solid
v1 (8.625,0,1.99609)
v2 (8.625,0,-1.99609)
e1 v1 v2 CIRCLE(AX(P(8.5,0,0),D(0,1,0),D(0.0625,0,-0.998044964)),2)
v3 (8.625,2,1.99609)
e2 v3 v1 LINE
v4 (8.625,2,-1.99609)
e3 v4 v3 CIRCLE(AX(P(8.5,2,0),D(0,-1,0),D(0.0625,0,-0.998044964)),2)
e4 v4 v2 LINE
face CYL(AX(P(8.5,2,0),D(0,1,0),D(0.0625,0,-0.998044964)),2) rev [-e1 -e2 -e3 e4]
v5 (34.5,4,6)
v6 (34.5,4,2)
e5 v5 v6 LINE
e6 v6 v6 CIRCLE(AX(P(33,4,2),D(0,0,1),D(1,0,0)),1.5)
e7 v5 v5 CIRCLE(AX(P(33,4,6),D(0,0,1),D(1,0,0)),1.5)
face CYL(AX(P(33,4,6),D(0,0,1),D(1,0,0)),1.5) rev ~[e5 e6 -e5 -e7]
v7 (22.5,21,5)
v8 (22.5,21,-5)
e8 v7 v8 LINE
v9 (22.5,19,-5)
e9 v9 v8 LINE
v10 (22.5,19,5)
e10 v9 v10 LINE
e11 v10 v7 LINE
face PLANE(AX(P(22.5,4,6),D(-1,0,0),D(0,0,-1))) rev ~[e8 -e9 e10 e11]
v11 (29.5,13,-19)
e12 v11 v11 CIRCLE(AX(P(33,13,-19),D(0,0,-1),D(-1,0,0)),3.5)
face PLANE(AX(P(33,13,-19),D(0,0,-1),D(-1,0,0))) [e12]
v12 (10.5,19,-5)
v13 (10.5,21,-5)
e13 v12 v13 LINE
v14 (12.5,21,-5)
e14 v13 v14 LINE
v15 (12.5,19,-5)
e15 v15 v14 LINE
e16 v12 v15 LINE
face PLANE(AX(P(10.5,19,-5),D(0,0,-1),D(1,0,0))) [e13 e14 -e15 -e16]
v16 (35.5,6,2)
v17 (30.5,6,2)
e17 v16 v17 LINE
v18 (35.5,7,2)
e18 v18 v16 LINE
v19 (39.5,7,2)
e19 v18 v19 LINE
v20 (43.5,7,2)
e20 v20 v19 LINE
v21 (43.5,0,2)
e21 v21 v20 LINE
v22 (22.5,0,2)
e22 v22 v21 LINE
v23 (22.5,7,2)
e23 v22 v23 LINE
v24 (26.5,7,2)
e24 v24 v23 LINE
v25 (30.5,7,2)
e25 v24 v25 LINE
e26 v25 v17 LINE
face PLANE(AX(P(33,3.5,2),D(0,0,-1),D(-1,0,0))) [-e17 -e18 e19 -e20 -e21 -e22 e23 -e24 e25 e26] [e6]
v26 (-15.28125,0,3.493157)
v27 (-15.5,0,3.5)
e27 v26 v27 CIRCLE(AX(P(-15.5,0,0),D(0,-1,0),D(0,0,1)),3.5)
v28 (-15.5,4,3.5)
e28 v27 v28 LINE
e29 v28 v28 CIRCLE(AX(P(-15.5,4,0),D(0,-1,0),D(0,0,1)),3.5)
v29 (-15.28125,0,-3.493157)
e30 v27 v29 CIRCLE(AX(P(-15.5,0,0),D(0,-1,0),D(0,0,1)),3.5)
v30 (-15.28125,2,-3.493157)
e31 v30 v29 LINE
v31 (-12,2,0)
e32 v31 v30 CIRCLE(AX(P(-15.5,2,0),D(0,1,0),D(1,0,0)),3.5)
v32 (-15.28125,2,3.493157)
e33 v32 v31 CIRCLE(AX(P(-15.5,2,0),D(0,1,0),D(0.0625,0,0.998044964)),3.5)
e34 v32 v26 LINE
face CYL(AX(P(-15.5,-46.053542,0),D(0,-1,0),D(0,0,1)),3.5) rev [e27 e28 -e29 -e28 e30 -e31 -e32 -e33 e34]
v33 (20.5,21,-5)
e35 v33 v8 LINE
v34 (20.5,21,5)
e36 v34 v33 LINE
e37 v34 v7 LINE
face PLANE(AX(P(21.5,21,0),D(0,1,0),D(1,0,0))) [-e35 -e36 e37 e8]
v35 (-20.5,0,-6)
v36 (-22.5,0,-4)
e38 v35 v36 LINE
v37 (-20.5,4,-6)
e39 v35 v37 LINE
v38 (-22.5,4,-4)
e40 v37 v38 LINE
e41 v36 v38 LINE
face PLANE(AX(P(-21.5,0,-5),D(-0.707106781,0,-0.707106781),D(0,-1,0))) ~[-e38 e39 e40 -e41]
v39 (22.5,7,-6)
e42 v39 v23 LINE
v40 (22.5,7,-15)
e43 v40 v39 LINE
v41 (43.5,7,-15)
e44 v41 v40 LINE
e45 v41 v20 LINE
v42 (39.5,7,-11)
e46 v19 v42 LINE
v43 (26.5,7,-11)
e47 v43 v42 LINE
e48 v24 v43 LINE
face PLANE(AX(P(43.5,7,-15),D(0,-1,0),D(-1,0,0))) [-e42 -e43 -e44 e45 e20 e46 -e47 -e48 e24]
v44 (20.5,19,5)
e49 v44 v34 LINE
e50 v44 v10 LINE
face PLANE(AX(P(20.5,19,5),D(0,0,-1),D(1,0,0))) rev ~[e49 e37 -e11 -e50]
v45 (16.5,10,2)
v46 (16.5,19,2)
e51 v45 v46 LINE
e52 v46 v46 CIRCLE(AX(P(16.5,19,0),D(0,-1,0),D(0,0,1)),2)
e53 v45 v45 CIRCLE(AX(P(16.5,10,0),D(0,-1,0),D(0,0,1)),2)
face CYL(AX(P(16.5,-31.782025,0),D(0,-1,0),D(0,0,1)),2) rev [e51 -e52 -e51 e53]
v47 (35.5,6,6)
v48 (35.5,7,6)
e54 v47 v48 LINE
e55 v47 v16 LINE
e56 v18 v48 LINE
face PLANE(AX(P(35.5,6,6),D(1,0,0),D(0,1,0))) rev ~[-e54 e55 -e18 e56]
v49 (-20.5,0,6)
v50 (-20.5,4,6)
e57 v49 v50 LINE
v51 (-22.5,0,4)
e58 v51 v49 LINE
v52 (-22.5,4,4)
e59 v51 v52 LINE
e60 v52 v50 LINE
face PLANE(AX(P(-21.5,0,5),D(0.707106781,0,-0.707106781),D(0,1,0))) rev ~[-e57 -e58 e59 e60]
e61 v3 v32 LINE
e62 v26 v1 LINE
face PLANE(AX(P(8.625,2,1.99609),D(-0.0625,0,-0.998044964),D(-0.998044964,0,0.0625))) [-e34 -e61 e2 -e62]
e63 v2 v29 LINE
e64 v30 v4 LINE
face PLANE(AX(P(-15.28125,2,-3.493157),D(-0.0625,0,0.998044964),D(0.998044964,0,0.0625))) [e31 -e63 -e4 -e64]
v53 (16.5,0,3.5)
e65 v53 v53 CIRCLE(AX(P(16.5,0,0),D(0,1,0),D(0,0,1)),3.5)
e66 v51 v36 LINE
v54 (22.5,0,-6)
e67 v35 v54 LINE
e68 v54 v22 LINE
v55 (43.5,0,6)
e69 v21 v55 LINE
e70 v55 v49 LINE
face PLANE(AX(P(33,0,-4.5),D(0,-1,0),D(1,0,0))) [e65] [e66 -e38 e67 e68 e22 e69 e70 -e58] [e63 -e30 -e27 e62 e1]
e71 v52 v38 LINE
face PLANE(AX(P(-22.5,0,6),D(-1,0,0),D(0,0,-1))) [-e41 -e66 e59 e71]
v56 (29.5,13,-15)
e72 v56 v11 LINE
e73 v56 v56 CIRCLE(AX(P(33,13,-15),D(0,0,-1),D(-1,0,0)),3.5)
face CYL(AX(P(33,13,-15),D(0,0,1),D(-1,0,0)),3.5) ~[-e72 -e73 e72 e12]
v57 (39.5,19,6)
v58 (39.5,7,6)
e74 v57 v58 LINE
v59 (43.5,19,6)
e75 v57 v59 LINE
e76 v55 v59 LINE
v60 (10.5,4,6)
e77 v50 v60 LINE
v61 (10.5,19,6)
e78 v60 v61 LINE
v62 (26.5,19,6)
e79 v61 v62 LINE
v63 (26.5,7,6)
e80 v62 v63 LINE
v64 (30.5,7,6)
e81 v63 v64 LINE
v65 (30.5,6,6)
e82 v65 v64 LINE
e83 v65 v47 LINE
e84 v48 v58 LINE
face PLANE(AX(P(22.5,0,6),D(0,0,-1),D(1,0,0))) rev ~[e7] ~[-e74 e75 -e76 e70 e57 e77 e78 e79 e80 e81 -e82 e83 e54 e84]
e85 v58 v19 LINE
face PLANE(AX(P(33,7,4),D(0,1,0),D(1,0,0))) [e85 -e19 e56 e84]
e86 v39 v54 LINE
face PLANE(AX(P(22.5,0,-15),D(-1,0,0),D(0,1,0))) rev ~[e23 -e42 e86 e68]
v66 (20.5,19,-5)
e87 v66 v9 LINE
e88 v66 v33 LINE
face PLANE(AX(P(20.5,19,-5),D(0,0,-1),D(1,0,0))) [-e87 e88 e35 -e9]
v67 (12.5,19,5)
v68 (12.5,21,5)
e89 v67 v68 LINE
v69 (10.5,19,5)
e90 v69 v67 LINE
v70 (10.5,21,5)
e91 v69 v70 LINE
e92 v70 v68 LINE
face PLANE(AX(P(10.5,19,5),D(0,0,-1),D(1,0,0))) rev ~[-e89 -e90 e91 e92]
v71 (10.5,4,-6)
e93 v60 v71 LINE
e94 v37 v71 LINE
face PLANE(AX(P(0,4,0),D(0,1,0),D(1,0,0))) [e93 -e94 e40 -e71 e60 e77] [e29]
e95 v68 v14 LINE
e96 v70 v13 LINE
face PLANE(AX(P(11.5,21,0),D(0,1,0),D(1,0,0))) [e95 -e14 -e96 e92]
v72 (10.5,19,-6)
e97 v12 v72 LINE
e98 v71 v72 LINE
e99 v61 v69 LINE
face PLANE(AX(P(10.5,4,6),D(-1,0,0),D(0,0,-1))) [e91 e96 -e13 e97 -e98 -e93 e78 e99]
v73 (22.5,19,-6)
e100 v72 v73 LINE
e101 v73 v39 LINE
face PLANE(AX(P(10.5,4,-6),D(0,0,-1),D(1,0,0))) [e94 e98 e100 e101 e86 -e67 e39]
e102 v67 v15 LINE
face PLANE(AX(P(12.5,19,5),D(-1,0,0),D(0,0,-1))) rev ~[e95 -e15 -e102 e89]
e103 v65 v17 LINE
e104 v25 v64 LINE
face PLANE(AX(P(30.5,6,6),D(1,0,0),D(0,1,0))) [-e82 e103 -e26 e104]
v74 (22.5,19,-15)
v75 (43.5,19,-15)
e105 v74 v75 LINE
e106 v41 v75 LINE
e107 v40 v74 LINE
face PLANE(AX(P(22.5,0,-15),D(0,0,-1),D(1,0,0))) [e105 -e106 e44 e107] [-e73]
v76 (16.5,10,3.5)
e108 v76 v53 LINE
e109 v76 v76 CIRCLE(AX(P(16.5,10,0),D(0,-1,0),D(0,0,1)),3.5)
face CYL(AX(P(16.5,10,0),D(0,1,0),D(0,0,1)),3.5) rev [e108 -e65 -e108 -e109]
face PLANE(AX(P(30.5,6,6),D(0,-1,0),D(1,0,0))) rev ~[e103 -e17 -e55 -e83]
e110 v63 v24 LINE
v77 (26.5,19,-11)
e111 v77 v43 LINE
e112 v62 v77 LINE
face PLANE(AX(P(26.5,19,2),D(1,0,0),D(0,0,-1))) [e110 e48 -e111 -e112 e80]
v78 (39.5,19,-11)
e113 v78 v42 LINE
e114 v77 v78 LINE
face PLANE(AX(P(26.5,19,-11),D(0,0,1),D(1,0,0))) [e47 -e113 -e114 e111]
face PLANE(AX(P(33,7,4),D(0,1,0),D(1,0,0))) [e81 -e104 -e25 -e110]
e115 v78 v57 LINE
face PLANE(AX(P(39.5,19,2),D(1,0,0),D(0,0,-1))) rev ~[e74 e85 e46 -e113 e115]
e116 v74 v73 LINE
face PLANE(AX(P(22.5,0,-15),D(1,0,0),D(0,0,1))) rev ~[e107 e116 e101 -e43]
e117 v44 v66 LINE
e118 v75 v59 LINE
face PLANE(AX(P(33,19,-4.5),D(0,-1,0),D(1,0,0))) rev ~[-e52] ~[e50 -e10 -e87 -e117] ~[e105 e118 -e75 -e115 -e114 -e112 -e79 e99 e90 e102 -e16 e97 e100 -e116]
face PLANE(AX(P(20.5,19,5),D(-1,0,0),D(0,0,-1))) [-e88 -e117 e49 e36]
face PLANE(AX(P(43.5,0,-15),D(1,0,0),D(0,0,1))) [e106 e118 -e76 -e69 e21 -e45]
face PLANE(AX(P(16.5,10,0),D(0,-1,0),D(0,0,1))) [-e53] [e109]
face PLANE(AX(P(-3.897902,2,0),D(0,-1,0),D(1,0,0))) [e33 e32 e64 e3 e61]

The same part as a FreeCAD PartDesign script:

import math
import FreeCAD as App
import Part
import Sketcher

V = App.Vector
Q = App.Units.Quantity


def edges_at(feature, points):
    """Names of the edges that pass closest to the given points."""
    edges = feature.Shape.Edges
    near = lambda p: min(range(len(edges)), key=lambda i: edges[i].distToShape(Part.Vertex(*p))[0])
    return sorted({f"Edge{near(p) + 1}" for p in points})


def add_polygon(sketch, points):
    """Adds a closed chain of lines whose ends are joined by coincident constraints."""
    first, n = sketch.GeometryCount, len(points)
    for a, b in zip(points, points[1:] + points[:1]):
        sketch.addGeometry(Part.LineSegment(App.Vector(*a, 0), App.Vector(*b, 0)), False)
    for i in range(n):
        sketch.addConstraint(Sketcher.Constraint("Coincident", first + i, 2, first + (i + 1) % n, 1))

doc = App.newDocument("Part")
body = doc.addObject("PartDesign::Body", "Body")

# Sketch on XZ plane
sketch1 = doc.addObject("Sketcher::SketchObject", "Sketch")
body.addObject(sketch1)
sketch1.AttachmentSupport = (doc.XZ_Plane, [""])
sketch1.MapMode = "FlatFace"
add_polygon(sketch1, [(-22, -6), (-22, 6), (22, 6), (22, -6)])  # lines 0-3
sketch1.addConstraint(Sketcher.Constraint("Vertical", 0))
sketch1.addConstraint(Sketcher.Constraint("Horizontal", 1))
sketch1.addConstraint(Sketcher.Constraint("Vertical", 2))
sketch1.addConstraint(Sketcher.Constraint("Horizontal", 3))
sketch1.addConstraint(Sketcher.Constraint("Symmetric", 0, 2, 2, 2, -1, 1))
sketch1.addConstraint(Sketcher.Constraint("DistanceX", 1, 1, 1, 2, Q("45 mm")))
sketch1.addConstraint(Sketcher.Constraint("DistanceY", 0, 1, 0, 2, Q("12 mm")))
pad1 = doc.addObject("PartDesign::Pad", "Pad")
body.addObject(pad1)
pad1.Profile = sketch1
pad1.Length = 4
pad1.Reversed = True

# Sketch on XZ plane
sketch2 = doc.addObject("Sketcher::SketchObject", "Sketch001")
body.addObject(sketch2)
sketch2.AttachmentSupport = (doc.XZ_Plane, [""])
sketch2.MapMode = "FlatFace"
sketch2.AttachmentOffset = App.Placement(V(0, 0, -4), App.Rotation())
add_polygon(sketch2, [(10, -6), (10, 6), (22, 6), (22, -6)])  # lines 0-3
sketch2.addConstraint(Sketcher.Constraint("Vertical", 0))
sketch2.addConstraint(Sketcher.Constraint("Horizontal", 1))
sketch2.addConstraint(Sketcher.Constraint("Vertical", 2))
sketch2.addConstraint(Sketcher.Constraint("Horizontal", 3))
sketch2.addConstraint(Sketcher.Constraint("Equal", 3, 0))
sketch2.addConstraint(Sketcher.Constraint("DistanceX", 1, 1, 1, 2, Q("12 mm")))
sketch2.addConstraint(Sketcher.Constraint("DistanceY", -1, 1, 0, 2, Q("6 mm")))
sketch2.addConstraint(Sketcher.Constraint("DistanceX", -1, 1, 0, 2, Q("10.5 mm")))
pad2 = doc.addObject("PartDesign::Pad", "Pad001")
body.addObject(pad2)
pad2.Profile = sketch2
pad2.Length = 15
pad2.Reversed = True

# Sketch on XZ plane
sketch3 = doc.addObject("Sketcher::SketchObject", "Sketch002")
body.addObject(sketch3)
sketch3.AttachmentSupport = (doc.XZ_Plane, [""])
sketch3.MapMode = "FlatFace"
sketch3.AttachmentOffset = App.Placement(V(0, 0, -19), App.Rotation())
add_polygon(sketch3, [(10.5, -5), (10.5, 5), (12.5, 5), (12.5, -5)])  # lines 0-3
add_polygon(sketch3, [(20.5, -5), (20.5, 5), (22.5, 5), (22.5, -5)])  # lines 4-7
sketch3.addConstraint(Sketcher.Constraint("Vertical", 0))
sketch3.addConstraint(Sketcher.Constraint("Horizontal", 1))
sketch3.addConstraint(Sketcher.Constraint("Vertical", 2))
sketch3.addConstraint(Sketcher.Constraint("Horizontal", 3))
sketch3.addConstraint(Sketcher.Constraint("Vertical", 4))
sketch3.addConstraint(Sketcher.Constraint("Horizontal", 5))
sketch3.addConstraint(Sketcher.Constraint("Vertical", 6))
sketch3.addConstraint(Sketcher.Constraint("Horizontal", 7))
sketch3.addConstraint(Sketcher.Constraint("Horizontal", 1, 2, 4, 2))
sketch3.addConstraint(Sketcher.Constraint("Horizontal", 3, 2, 6, 2))
sketch3.addConstraint(Sketcher.Constraint("Equal", 3, 5))
sketch3.addConstraint(Sketcher.Constraint("DistanceX", 1, 1, 1, 2, Q("2 mm")))
sketch3.addConstraint(Sketcher.Constraint("DistanceY", 0, 1, 0, 2, Q("10 mm")))
sketch3.addConstraint(Sketcher.Constraint("DistanceY", -1, 1, 0, 2, Q("5 mm")))
sketch3.addConstraint(Sketcher.Constraint("DistanceX", 1, 2, 4, 2, Q("8 mm")))
sketch3.addConstraint(Sketcher.Constraint("DistanceX", -1, 1, 0, 2, Q("10.5 mm")))
pad3 = doc.addObject("PartDesign::Pad", "Pad002")
body.addObject(pad3)
pad3.Profile = sketch3
pad3.Length = 2
pad3.Reversed = True

# Sketch on XZ plane
sketch4 = doc.addObject("Sketcher::SketchObject", "Sketch003")
body.addObject(sketch4)
sketch4.AttachmentSupport = (doc.XZ_Plane, [""])
sketch4.MapMode = "FlatFace"
add_polygon(sketch4, [(22, 6), (22, -15), (44, -15), (44, 6)])  # lines 0-3
sketch4.addConstraint(Sketcher.Constraint("Vertical", 0))
sketch4.addConstraint(Sketcher.Constraint("Horizontal", 1))
sketch4.addConstraint(Sketcher.Constraint("Vertical", 2))
sketch4.addConstraint(Sketcher.Constraint("Horizontal", 3))
sketch4.addConstraint(Sketcher.Constraint("Equal", 3, 0))
sketch4.addConstraint(Sketcher.Constraint("DistanceX", 1, 1, 1, 2, Q("21 mm")))
sketch4.addConstraint(Sketcher.Constraint("DistanceY", 0, 2, -1, 1, Q("15 mm")))
sketch4.addConstraint(Sketcher.Constraint("DistanceX", -1, 1, 0, 2, Q("22.5 mm")))
pad4 = doc.addObject("PartDesign::Pad", "Pad003")
body.addObject(pad4)
pad4.Profile = sketch4
pad4.Length = 19
pad4.Reversed = True

# Sketch on XZ plane
sketch5 = doc.addObject("Sketcher::SketchObject", "Sketch004")
body.addObject(sketch5)
sketch5.AttachmentSupport = (doc.XZ_Plane, [""])
sketch5.MapMode = "FlatFace"
sketch5.AttachmentOffset = App.Placement(V(0, 0, -19), App.Rotation())
add_polygon(sketch5, [(26, -11), (26, 2), (40, 2), (40, -11)])  # lines 0-3
sketch5.addConstraint(Sketcher.Constraint("Vertical", 0))
sketch5.addConstraint(Sketcher.Constraint("Horizontal", 1))
sketch5.addConstraint(Sketcher.Constraint("Vertical", 2))
sketch5.addConstraint(Sketcher.Constraint("Horizontal", 3))
sketch5.addConstraint(Sketcher.Constraint("Equal", 3, 0))
sketch5.addConstraint(Sketcher.Constraint("DistanceX", 1, 1, 1, 2, Q("13 mm")))
sketch5.addConstraint(Sketcher.Constraint("DistanceY", -1, 1, 0, 2, Q("2 mm")))
sketch5.addConstraint(Sketcher.Constraint("DistanceX", -1, 1, 0, 2, Q("26.5 mm")))
pocket1 = doc.addObject("PartDesign::Pocket", "Pocket")
body.addObject(pocket1)
pocket1.Profile = sketch5
pocket1.Type = "ThroughAll"
pocket1.Reversed = True

# Sketch on XZ plane
sketch6 = doc.addObject("Sketcher::SketchObject", "Sketch005")
body.addObject(sketch6)
sketch6.AttachmentSupport = (doc.XZ_Plane, [""])
sketch6.MapMode = "FlatFace"
sketch6.AttachmentOffset = App.Placement(V(0, 0, -19), App.Rotation())
add_polygon(sketch6, [(26.5, 2), (26.5, 6), (39.5, 6), (39.5, 2)])  # lines 0-3
sketch6.addConstraint(Sketcher.Constraint("Vertical", 0))
sketch6.addConstraint(Sketcher.Constraint("Horizontal", 1))
sketch6.addConstraint(Sketcher.Constraint("Vertical", 2))
sketch6.addConstraint(Sketcher.Constraint("Horizontal", 3))
sketch6.addConstraint(Sketcher.Constraint("DistanceX", 1, 1, 1, 2, Q("13 mm")))
sketch6.addConstraint(Sketcher.Constraint("DistanceY", 0, 1, 0, 2, Q("4 mm")))
sketch6.addConstraint(Sketcher.Constraint("DistanceY", -1, 1, 0, 2, Q("6 mm")))
sketch6.addConstraint(Sketcher.Constraint("DistanceX", -1, 1, 0, 2, Q("26.5 mm")))
pocket2 = doc.addObject("PartDesign::Pocket", "Pocket001")
body.addObject(pocket2)
pocket2.Profile = sketch6
pocket2.Length = 12
pocket2.Reversed = True

# Sketch on XY plane
sketch7 = doc.addObject("Sketcher::SketchObject", "Sketch006")
body.addObject(sketch7)
sketch7.AttachmentSupport = (doc.XY_Plane, [""])
sketch7.MapMode = "FlatFace"
sketch7.AttachmentOffset = App.Placement(V(0, 0, 6), App.Rotation())
add_polygon(sketch7, [(30.5, 8), (30.5, 6), (35.5, 6), (35.5, 8)])  # lines 0-3
sketch7.addConstraint(Sketcher.Constraint("Vertical", 0))
sketch7.addConstraint(Sketcher.Constraint("Horizontal", 1))
sketch7.addConstraint(Sketcher.Constraint("Vertical", 2))
sketch7.addConstraint(Sketcher.Constraint("Horizontal", 3))
sketch7.addConstraint(Sketcher.Constraint("DistanceX", 1, 1, 1, 2, Q("5 mm")))
sketch7.addConstraint(Sketcher.Constraint("DistanceY", 0, 2, 0, 1, Q("2 mm")))
sketch7.addConstraint(Sketcher.Constraint("DistanceY", -1, 1, 0, 2, Q("6 mm")))
sketch7.addConstraint(Sketcher.Constraint("DistanceX", -1, 1, 0, 2, Q("30.5 mm")))
pocket3 = doc.addObject("PartDesign::Pocket", "Pocket002")
body.addObject(pocket3)
pocket3.Profile = sketch7
pocket3.Type = "UpToFirst"

# Sketch on XY plane
sketch8 = doc.addObject("Sketcher::SketchObject", "Sketch007")
body.addObject(sketch8)
sketch8.AttachmentSupport = (doc.XY_Plane, [""])
sketch8.MapMode = "FlatFace"
sketch8.AttachmentOffset = App.Placement(V(0, 0, 6), App.Rotation())
sketch8.addGeometry(Part.Circle(V(33, 4, 0), V(0, 0, 1), 1.5), False)
sketch8.addConstraint(Sketcher.Constraint("Diameter", 0, Q("3 mm")))
sketch8.addConstraint(Sketcher.Constraint("DistanceX", -1, 1, 0, 3, Q("33 mm")))
sketch8.addConstraint(Sketcher.Constraint("DistanceY", -1, 1, 0, 3, Q("4 mm")))
pocket4 = doc.addObject("PartDesign::Pocket", "Pocket003")
body.addObject(pocket4)
pocket4.Profile = sketch8
pocket4.Type = "UpToFirst"
doc.recompute()

chamfer = doc.addObject("PartDesign::Chamfer", "Chamfer")
body.addObject(chamfer)
chamfer.Base = (pocket4, edges_at(pocket4, [(-22.5, 2, -6), (-22.5, 2, 6)]))
chamfer.Size = 2

# Sketch on XZ plane
sketch9 = doc.addObject("Sketcher::SketchObject", "Sketch008")
body.addObject(sketch9)
sketch9.AttachmentSupport = (doc.XZ_Plane, [""])
sketch9.MapMode = "FlatFace"
sketch9.AttachmentOffset = App.Placement(V(0, 0, -4), App.Rotation())
sketch9.addGeometry(Part.Circle(V(-15.5, 0, 0), V(0, 0, 1), 3.5), False)
sketch9.addConstraint(Sketcher.Constraint("PointOnObject", 0, 3, -1))
sketch9.addConstraint(Sketcher.Constraint("Diameter", 0, Q("7 mm")))
sketch9.addConstraint(Sketcher.Constraint("DistanceX", 0, 3, -1, 1, Q("15.5 mm")))
pocket5 = doc.addObject("PartDesign::Pocket", "Pocket004")
body.addObject(pocket5)
pocket5.Profile = sketch9
pocket5.Type = "ThroughAll"
pocket5.Midplane = True

# Sketch on XZ plane
sketch10 = doc.addObject("Sketcher::SketchObject", "Sketch009")
body.addObject(sketch10)
sketch10.AttachmentSupport = (doc.XZ_Plane, [""])
sketch10.MapMode = "FlatFace"
sketch10.addGeometry(Part.LineSegment(V(8.6, 2, 0), V(-15.3, 3.5, 0)), False)
sketch10.addGeometry(Part.ArcOfCircle(Part.Circle(V(-15.5, 0, 0), V(0, 0, 1), 3.5), math.radians(0), math.radians(86)), False)
sketch10.addGeometry(Part.ArcOfCircle(Part.Circle(V(-15.5, 0, 0), V(0, 0, 1), 3.5), math.radians(-86), math.radians(0)), False)
sketch10.addGeometry(Part.LineSegment(V(-15.3, -3.5, 0), V(8.6, -2, 0)), False)
sketch10.addGeometry(Part.ArcOfCircle(Part.Circle(V(8.5, 0, 0), V(0, 0, 1), 2), math.radians(-86), math.radians(86)), False)
sketch10.addConstraint(Sketcher.Constraint("Tangent", 0, 2, 1, 2))
sketch10.addConstraint(Sketcher.Constraint("Tangent", 1, 1, 2, 2))
sketch10.addConstraint(Sketcher.Constraint("Tangent", 2, 1, 3, 1))
sketch10.addConstraint(Sketcher.Constraint("Tangent", 3, 2, 4, 1))
sketch10.addConstraint(Sketcher.Constraint("Tangent", 4, 2, 0, 1))
sketch10.addConstraint(Sketcher.Constraint("Equal", 1, 2))
sketch10.addConstraint(Sketcher.Constraint("Symmetric", 0, 2, 2, 1, -1))
sketch10.addConstraint(Sketcher.Constraint("PointOnObject", 1, 1, -1))
sketch10.addConstraint(Sketcher.Constraint("Radius", 4, Q("2 mm")))
sketch10.addConstraint(Sketcher.Constraint("Radius", 1, Q("3.5 mm")))
sketch10.addConstraint(Sketcher.Constraint("DistanceX", 1, 1, -1, 1, Q("12 mm")))
sketch10.addConstraint(Sketcher.Constraint("DistanceX", 1, 3, 4, 3, Q("24 mm")))
pocket6 = doc.addObject("PartDesign::Pocket", "Pocket005")
body.addObject(pocket6)
pocket6.Profile = sketch10
pocket6.Type = "TwoLengths"
pocket6.Length = 51.579146
pocket6.Length2 = 2
pocket6.Reversed = True

# Sketch on XZ plane
sketch11 = doc.addObject("Sketcher::SketchObject", "Sketch010")
body.addObject(sketch11)
sketch11.AttachmentSupport = (doc.XZ_Plane, [""])
sketch11.MapMode = "FlatFace"
sketch11.AttachmentOffset = App.Placement(V(0, 0, -19), App.Rotation())
sketch11.addGeometry(Part.Circle(V(16.5, 0, 0), V(0, 0, 1), 2), False)
sketch11.addConstraint(Sketcher.Constraint("PointOnObject", 0, 3, -1))
sketch11.addConstraint(Sketcher.Constraint("Diameter", 0, Q("4 mm")))
sketch11.addConstraint(Sketcher.Constraint("DistanceX", -1, 1, 0, 3, Q("16.5 mm")))
pocket7 = doc.addObject("PartDesign::Pocket", "Pocket006")
body.addObject(pocket7)
pocket7.Profile = sketch11
pocket7.Type = "ThroughAll"
pocket7.Midplane = True

# Sketch on XZ plane
sketch12 = doc.addObject("Sketcher::SketchObject", "Sketch011")
body.addObject(sketch12)
sketch12.AttachmentSupport = (doc.XZ_Plane, [""])
sketch12.MapMode = "FlatFace"
sketch12.addGeometry(Part.Circle(V(16.5, 0, 0), V(0, 0, 1), 3.5), False)
sketch12.addConstraint(Sketcher.Constraint("PointOnObject", 0, 3, -1))
sketch12.addConstraint(Sketcher.Constraint("Diameter", 0, Q("7 mm")))
sketch12.addConstraint(Sketcher.Constraint("DistanceX", -1, 1, 0, 3, Q("16.5 mm")))
pocket8 = doc.addObject("PartDesign::Pocket", "Pocket007")
body.addObject(pocket8)
pocket8.Profile = sketch12
pocket8.Type = "TwoLengths"
pocket8.Length = 51.579146
pocket8.Length2 = 10
pocket8.Reversed = True

# Sketch on XY plane
sketch13 = doc.addObject("Sketcher::SketchObject", "Sketch012")
body.addObject(sketch13)
sketch13.AttachmentSupport = (doc.XY_Plane, [""])
sketch13.MapMode = "FlatFace"
sketch13.AttachmentOffset = App.Placement(V(0, 0, -15), App.Rotation())
add_polygon(sketch13, [(44, 7), (44, 0), (22, 0), (22, 7)])  # lines 0-3
sketch13.addConstraint(Sketcher.Constraint("Vertical", 0))
sketch13.addConstraint(Sketcher.Constraint("Horizontal", 1))
sketch13.addConstraint(Sketcher.Constraint("Vertical", 2))
sketch13.addConstraint(Sketcher.Constraint("Horizontal", 3))
sketch13.addConstraint(Sketcher.Constraint("PointOnObject", 0, 2, -1))
sketch13.addConstraint(Sketcher.Constraint("DistanceX", 1, 2, 1, 1, Q("21 mm")))
sketch13.addConstraint(Sketcher.Constraint("DistanceY", 0, 2, 0, 1, Q("7 mm")))
sketch13.addConstraint(Sketcher.Constraint("DistanceX", -1, 1, 0, 2, Q("43.5 mm")))
pocket9 = doc.addObject("PartDesign::Pocket", "Pocket008")
body.addObject(pocket9)
pocket9.Profile = sketch13
pocket9.Length = 17
pocket9.Reversed = True

# Sketch on XY plane
sketch14 = doc.addObject("Sketcher::SketchObject", "Sketch013")
body.addObject(sketch14)
sketch14.AttachmentSupport = (doc.XY_Plane, [""])
sketch14.MapMode = "FlatFace"
sketch14.AttachmentOffset = App.Placement(V(0, 0, -15), App.Rotation())
sketch14.addGeometry(Part.Circle(V(33, 13, 0), V(0, 0, 1), 3.5), False)
sketch14.addConstraint(Sketcher.Constraint("Diameter", 0, Q("7 mm")))
sketch14.addConstraint(Sketcher.Constraint("DistanceX", -1, 1, 0, 3, Q("33 mm")))
sketch14.addConstraint(Sketcher.Constraint("DistanceY", -1, 1, 0, 3, Q("13 mm")))
pad5 = doc.addObject("PartDesign::Pad", "Pad004")
body.addObject(pad5)
pad5.Profile = sketch14
pad5.Length = 4
pad5.Reversed = True

doc.recompute()
